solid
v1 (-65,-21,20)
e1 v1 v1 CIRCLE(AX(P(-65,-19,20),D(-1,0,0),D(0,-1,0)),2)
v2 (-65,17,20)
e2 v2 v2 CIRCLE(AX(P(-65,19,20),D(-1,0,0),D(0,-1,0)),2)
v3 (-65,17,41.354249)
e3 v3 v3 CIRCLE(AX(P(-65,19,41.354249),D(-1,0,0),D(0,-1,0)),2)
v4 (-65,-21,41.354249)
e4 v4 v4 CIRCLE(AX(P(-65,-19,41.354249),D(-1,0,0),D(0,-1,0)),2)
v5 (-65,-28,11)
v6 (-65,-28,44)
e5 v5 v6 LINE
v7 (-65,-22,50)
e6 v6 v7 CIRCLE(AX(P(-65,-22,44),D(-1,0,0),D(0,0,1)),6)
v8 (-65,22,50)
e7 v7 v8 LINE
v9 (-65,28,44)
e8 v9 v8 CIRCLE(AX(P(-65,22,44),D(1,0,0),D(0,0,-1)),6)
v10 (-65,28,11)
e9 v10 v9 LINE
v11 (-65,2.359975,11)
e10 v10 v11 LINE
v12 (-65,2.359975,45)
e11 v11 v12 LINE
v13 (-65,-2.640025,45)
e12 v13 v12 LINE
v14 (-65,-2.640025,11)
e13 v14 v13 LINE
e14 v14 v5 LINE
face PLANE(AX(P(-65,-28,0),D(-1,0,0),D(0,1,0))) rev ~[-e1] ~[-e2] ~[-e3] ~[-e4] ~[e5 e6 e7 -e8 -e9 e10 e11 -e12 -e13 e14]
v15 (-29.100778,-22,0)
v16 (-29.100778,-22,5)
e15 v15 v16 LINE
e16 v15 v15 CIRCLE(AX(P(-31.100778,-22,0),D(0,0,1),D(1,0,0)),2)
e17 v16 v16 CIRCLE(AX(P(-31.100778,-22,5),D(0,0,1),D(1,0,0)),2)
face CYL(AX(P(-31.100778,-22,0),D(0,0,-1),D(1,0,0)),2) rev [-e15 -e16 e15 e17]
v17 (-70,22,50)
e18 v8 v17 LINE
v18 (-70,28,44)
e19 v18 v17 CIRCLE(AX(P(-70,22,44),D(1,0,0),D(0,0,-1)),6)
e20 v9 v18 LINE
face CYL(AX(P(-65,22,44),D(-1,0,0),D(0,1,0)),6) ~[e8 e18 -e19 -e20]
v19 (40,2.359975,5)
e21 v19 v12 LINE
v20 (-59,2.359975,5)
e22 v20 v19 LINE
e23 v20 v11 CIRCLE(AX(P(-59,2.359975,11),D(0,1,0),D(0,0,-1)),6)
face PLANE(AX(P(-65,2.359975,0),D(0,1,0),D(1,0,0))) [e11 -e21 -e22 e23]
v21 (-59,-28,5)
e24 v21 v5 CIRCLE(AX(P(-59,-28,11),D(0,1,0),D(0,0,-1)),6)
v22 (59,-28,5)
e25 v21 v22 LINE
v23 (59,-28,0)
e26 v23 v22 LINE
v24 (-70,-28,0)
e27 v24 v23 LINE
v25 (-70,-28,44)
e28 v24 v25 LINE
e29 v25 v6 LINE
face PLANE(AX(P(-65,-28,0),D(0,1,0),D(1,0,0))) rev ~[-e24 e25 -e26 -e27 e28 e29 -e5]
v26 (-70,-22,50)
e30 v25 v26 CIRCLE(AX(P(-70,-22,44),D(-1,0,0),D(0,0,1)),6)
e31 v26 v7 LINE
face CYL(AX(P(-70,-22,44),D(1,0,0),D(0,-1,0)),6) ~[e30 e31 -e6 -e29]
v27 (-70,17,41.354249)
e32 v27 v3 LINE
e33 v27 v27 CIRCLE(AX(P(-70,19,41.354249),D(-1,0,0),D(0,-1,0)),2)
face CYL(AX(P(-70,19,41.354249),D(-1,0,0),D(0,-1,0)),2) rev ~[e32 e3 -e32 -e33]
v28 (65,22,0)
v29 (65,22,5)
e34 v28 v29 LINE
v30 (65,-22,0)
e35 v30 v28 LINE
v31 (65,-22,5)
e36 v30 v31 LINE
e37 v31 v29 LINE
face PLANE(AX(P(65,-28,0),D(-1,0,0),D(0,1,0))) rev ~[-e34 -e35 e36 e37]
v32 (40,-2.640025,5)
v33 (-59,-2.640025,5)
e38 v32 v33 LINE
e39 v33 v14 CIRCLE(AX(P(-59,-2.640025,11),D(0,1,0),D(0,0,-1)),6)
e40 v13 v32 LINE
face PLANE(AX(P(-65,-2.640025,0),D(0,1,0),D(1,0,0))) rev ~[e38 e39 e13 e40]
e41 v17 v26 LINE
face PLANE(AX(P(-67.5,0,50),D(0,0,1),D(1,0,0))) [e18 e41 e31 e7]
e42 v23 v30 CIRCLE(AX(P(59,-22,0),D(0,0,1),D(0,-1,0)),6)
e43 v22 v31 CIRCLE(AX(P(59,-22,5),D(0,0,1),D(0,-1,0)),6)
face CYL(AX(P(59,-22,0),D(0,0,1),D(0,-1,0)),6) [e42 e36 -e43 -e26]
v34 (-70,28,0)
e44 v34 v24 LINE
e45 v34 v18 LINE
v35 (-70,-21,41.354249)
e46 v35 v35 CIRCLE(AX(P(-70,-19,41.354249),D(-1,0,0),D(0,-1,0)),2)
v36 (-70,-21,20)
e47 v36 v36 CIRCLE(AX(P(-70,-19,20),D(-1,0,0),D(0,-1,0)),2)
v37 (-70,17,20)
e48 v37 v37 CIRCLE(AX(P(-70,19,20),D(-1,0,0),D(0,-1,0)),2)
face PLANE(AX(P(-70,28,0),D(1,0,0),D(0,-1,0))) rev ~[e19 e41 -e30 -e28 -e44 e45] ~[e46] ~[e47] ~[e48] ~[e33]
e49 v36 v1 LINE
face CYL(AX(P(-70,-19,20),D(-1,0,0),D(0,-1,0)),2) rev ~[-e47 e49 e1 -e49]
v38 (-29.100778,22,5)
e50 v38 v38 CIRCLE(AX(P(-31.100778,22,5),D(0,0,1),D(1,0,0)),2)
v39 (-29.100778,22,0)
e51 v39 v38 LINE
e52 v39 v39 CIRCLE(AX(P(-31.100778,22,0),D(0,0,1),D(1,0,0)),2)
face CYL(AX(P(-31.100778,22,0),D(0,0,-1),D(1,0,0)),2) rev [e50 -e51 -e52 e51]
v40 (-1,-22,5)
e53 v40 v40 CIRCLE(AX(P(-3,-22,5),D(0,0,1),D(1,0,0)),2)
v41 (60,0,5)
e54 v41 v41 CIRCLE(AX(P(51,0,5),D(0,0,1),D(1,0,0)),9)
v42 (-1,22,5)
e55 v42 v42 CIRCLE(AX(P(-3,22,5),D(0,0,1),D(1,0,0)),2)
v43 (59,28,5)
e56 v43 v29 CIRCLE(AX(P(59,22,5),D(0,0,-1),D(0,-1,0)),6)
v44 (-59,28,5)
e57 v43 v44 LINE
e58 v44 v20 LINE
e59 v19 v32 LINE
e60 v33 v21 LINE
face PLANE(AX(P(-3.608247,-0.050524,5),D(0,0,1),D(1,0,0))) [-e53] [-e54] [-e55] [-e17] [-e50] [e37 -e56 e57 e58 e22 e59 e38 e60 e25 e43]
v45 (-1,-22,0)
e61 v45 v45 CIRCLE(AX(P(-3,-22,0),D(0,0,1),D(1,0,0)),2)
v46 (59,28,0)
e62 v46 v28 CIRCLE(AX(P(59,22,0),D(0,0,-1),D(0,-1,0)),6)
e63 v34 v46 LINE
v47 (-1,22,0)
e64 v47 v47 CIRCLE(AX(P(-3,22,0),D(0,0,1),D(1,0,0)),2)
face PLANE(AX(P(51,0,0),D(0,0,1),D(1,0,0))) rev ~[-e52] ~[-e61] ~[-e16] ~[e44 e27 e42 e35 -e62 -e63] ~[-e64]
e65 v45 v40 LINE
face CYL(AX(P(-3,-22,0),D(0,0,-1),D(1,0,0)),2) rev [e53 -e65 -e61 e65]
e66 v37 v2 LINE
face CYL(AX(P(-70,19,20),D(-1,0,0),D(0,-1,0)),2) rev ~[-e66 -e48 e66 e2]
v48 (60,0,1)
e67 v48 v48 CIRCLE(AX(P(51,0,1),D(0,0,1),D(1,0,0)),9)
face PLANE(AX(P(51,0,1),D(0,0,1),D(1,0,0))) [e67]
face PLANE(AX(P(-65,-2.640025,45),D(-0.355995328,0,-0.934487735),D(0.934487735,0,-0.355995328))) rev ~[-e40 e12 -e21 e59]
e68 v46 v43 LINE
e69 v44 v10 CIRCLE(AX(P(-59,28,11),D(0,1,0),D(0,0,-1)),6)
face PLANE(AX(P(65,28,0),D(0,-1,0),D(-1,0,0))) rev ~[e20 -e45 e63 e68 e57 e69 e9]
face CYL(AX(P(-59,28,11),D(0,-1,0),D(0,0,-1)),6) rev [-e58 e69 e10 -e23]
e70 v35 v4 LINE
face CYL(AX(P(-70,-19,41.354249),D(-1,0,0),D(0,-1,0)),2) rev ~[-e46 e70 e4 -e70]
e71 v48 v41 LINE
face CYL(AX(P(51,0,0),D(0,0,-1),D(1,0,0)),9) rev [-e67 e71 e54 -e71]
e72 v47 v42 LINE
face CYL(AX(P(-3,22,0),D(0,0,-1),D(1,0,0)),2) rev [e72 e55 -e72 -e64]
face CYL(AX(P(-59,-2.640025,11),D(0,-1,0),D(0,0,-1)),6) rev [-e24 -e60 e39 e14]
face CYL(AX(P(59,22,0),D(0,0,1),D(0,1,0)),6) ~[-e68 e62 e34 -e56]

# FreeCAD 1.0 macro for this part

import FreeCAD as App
import Part
import Sketcher


def edges_at(feature, points):
    """Names of the edges that pass closest to the given points."""
    edges = feature.Shape.Edges
    near = lambda p: min(range(len(edges)), key=lambda i: edges[i].distToShape(Part.Vertex(*p))[0])
    return sorted({f"Edge{near(p) + 1}" for p in points})

doc = App.newDocument("Part")
body = doc.addObject("PartDesign::Body", "Body")

# Sketch on XY plane
sketch1 = body.newObject("Sketcher::SketchObject", "Sketch")
sketch1.AttachmentSupport = (doc.getObject("XY_Plane"), [""])
sketch1.MapMode = "FlatFace"
sketch1.addGeometry([
    Part.LineSegment(App.Vector(-70, -28, 0), App.Vector(-65, -28, 0)),
    Part.LineSegment(App.Vector(-65, -28, 0), App.Vector(-65, 28, 0)),
    Part.LineSegment(App.Vector(-65, 28, 0), App.Vector(-70, 28, 0)),
    Part.LineSegment(App.Vector(-70, 28, 0), App.Vector(-70, -28, 0)),
], False)
sketch1.addConstraint([
    Sketcher.Constraint("Coincident", 0, 2, 1, 1),
    Sketcher.Constraint("Coincident", 1, 2, 2, 1),
    Sketcher.Constraint("Coincident", 2, 2, 3, 1),
    Sketcher.Constraint("Coincident", 3, 2, 0, 1),
    Sketcher.Constraint("Horizontal", 0),
    Sketcher.Constraint("Vertical", 1),
    Sketcher.Constraint("Horizontal", 2),
    Sketcher.Constraint("Vertical", 3),
    Sketcher.Constraint("DistanceX", 0, 1, 0, 2, 5.0),
    Sketcher.Constraint("DistanceY", 1, 1, 1, 2, 56.0),
    Sketcher.Constraint("DistanceX", 0, 2, -1, 1, 65.0),
    Sketcher.Constraint("DistanceY", 0, 2, -1, 1, 28.0),
])
pad1 = body.newObject("PartDesign::Pad", "Pad")
pad1.Profile = sketch1
pad1.Length = 50

# Sketch on XY plane
sketch2 = body.newObject("Sketcher::SketchObject", "Sketch001")
sketch2.AttachmentSupport = (doc.getObject("XY_Plane"), [""])
sketch2.MapMode = "FlatFace"
sketch2.addGeometry([
    Part.LineSegment(App.Vector(-65, -28, 0), App.Vector(65, -28, 0)),  # 0
    Part.LineSegment(App.Vector(65, -28, 0), App.Vector(65, 28, 0)),  # 1
    Part.LineSegment(App.Vector(65, 28, 0), App.Vector(-65, 28, 0)),  # 2
    Part.LineSegment(App.Vector(-65, 28, 0), App.Vector(-65, 2.4, 0)),  # 3
    Part.LineSegment(App.Vector(-65, 2.4, 0), App.Vector(40, 2.4, 0)),  # 4
    Part.LineSegment(App.Vector(40, 2.4, 0), App.Vector(40, -2.6, 0)),  # 5
    Part.LineSegment(App.Vector(40, -2.6, 0), App.Vector(-65, -2.6, 0)),  # 6
    Part.LineSegment(App.Vector(-65, -2.6, 0), App.Vector(-65, -28, 0)),  # 7
    Part.Circle(App.Vector(-31.1, -22, 0), App.Vector(0, 0, 1), 2),  # 8
    Part.Circle(App.Vector(-3, -22, 0), App.Vector(0, 0, 1), 2),  # 9
    Part.Circle(App.Vector(-31.1, 22, 0), App.Vector(0, 0, 1), 2),  # 10
    Part.Circle(App.Vector(-3, 22, 0), App.Vector(0, 0, 1), 2),  # 11
    Part.Circle(App.Vector(51, 0, 0), App.Vector(0, 0, 1), 9),  # 12
], False)
sketch2.addConstraint([
    Sketcher.Constraint("Coincident", 0, 2, 1, 1),
    Sketcher.Constraint("Coincident", 1, 2, 2, 1),
    Sketcher.Constraint("Coincident", 2, 2, 3, 1),
    Sketcher.Constraint("Coincident", 3, 2, 4, 1),
    Sketcher.Constraint("Coincident", 4, 2, 5, 1),
    Sketcher.Constraint("Coincident", 5, 2, 6, 1),
    Sketcher.Constraint("Coincident", 6, 2, 7, 1),
    Sketcher.Constraint("Coincident", 7, 2, 0, 1),
    Sketcher.Constraint("Horizontal", 0),
    Sketcher.Constraint("Vertical", 1),
    Sketcher.Constraint("Horizontal", 2),
    Sketcher.Constraint("Vertical", 3),
    Sketcher.Constraint("Horizontal", 4),
    Sketcher.Constraint("Vertical", 5),
    Sketcher.Constraint("Horizontal", 6),
    Sketcher.Constraint("Vertical", 7),
    Sketcher.Constraint("Equal", 8, 9),
    Sketcher.Constraint("Equal", 9, 10),
    Sketcher.Constraint("Equal", 10, 11),
    Sketcher.Constraint("Symmetric", 0, 2, 2, 2, -1, 1),
    Sketcher.Constraint("Symmetric", 8, 3, 10, 3, -1),
    Sketcher.Constraint("Symmetric", 9, 3, 11, 3, -1),
    Sketcher.Constraint("PointOnObject", 12, 3, -1),
    Sketcher.Constraint("Horizontal", 8, 3, 9, 3),
    Sketcher.Constraint("Vertical", 3, 2, 6, 2),
    Sketcher.Constraint("Diameter", 8, 4.0),
    Sketcher.Constraint("Diameter", 12, 18.0),
    Sketcher.Constraint("DistanceX", 0, 1, 0, 2, 130.0),
    Sketcher.Constraint("DistanceX", 4, 1, 4, 2, 105.0),
    Sketcher.Constraint("DistanceY", 1, 1, 1, 2, 56.0),
    Sketcher.Constraint("DistanceY", 5, 2, 5, 1, 5.0),
    Sketcher.Constraint("DistanceY", 8, 3, -1, 1, 22.0),
    Sketcher.Constraint("DistanceX", 9, 3, -1, 1, 3.0),
    Sketcher.Constraint("DistanceX", -1, 1, 12, 3, 51.0),
    Sketcher.Constraint("DistanceY", 3, 2, 3, 1, 25.640025),
    Sketcher.Constraint("DistanceX", 8, 3, -1, 1, 31.100778),
])
pad2 = body.newObject("PartDesign::Pad", "Pad001")
pad2.Profile = sketch2
pad2.Length = 5
doc.recompute()

fillet = body.newObject("PartDesign::Fillet", "Fillet")
fillet.Base = (pad2, edges_at(pad2, [
    (-67.5, 28, 50),
    (-67.5, -28, 50),
    (65, -28, 2.5),
    (65, 28, 2.5),
    (-65, -15.32, 5),
    (-65, 15.18, 5),
]))
fillet.Radius = 6

# Sketch on XY plane
sketch3 = body.newObject("Sketcher::SketchObject", "Sketch002")
sketch3.AttachmentSupport = (doc.getObject("XY_Plane"), [""])
sketch3.MapMode = "FlatFace"
sketch3.addGeometry(Part.Circle(App.Vector(51, 0, 0), App.Vector(0, 0, 1), 9), False)
sketch3.addConstraint([
    Sketcher.Constraint("PointOnObject", 0, 3, -1),
    Sketcher.Constraint("Diameter", 0, 18.0),
    Sketcher.Constraint("DistanceX", -1, 1, 0, 3, 51.0),
])
pad3 = body.newObject("PartDesign::Pad", "Pad002")
pad3.Profile = sketch3
pad3.Length = 1

# Sketch on XY plane
sketch4 = body.newObject("Sketcher::SketchObject", "Sketch003")
sketch4.AttachmentSupport = (doc.getObject("XY_Plane"), [""])
sketch4.MapMode = "FlatFace"
sketch4.addGeometry([
    Part.LineSegment(App.Vector(-65, 2, 0), App.Vector(-65, -3, 0)),
    Part.LineSegment(App.Vector(-65, -3, 0), App.Vector(40, -3, 0)),
    Part.LineSegment(App.Vector(40, -3, 0), App.Vector(40, 2, 0)),
    Part.LineSegment(App.Vector(40, 2, 0), App.Vector(-65, 2, 0)),
], False)
sketch4.addConstraint([
    Sketcher.Constraint("Coincident", 0, 2, 1, 1),
    Sketcher.Constraint("Coincident", 1, 2, 2, 1),
    Sketcher.Constraint("Coincident", 2, 2, 3, 1),
    Sketcher.Constraint("Coincident", 3, 2, 0, 1),
    Sketcher.Constraint("Vertical", 0),
    Sketcher.Constraint("Horizontal", 1),
    Sketcher.Constraint("Vertical", 2),
    Sketcher.Constraint("Horizontal", 3),
    Sketcher.Constraint("DistanceX", 1, 1, 1, 2, 105.0),
    Sketcher.Constraint("DistanceY", 0, 2, 0, 1, 5.0),
    Sketcher.Constraint("DistanceX", 0, 2, -1, 1, 65.0),
    Sketcher.Constraint("DistanceY", 0, 2, -1, 1, 2.640025),
])
pad4 = body.newObject("PartDesign::Pad", "Pad003")
pad4.Profile = sketch4
pad4.Length = 45

# Sketch on XZ plane
sketch5 = body.newObject("Sketcher::SketchObject", "Sketch004")
sketch5.AttachmentSupport = (doc.getObject("XZ_Plane"), [""])
sketch5.MapMode = "FlatFace"
sketch5.AttachmentOffset = App.Placement(App.Vector(0, 0, 2.640025), App.Rotation())
sketch5.addGeometry([
    Part.LineSegment(App.Vector(40, 45, 0), App.Vector(-65, 45, 0)),
    Part.LineSegment(App.Vector(-65, 45, 0), App.Vector(40, 5, 0)),
    Part.LineSegment(App.Vector(40, 5, 0), App.Vector(40, 45, 0)),
], False)
sketch5.addConstraint([
    Sketcher.Constraint("Coincident", 0, 2, 1, 1),
    Sketcher.Constraint("Coincident", 1, 2, 2, 1),
    Sketcher.Constraint("Coincident", 2, 2, 0, 1),
    Sketcher.Constraint("Horizontal", 0),
    Sketcher.Constraint("Vertical", 2),
    Sketcher.Constraint("DistanceX", 0, 2, 0, 1, 105.0),
    Sketcher.Constraint("DistanceY", 2, 1, 2, 2, 40.0),
    Sketcher.Constraint("DistanceX", 0, 2, -1, 1, 65.0),
    Sketcher.Constraint("DistanceY", -1, 1, 0, 2, 45.0),
])
pocket1 = body.newObject("PartDesign::Pocket", "Pocket")
pocket1.Profile = sketch5
pocket1.Length = 25

# Sketch on YZ plane
sketch6 = body.newObject("Sketcher::SketchObject", "Sketch005")
sketch6.AttachmentSupport = (doc.getObject("YZ_Plane"), [""])
sketch6.MapMode = "FlatFace"
sketch6.AttachmentOffset = App.Placement(App.Vector(0, 0, -70), App.Rotation())
sketch6.addGeometry([
    Part.Circle(App.Vector(19, 41.4, 0), App.Vector(0, 0, 1), 2),
    Part.Circle(App.Vector(19, 20, 0), App.Vector(0, 0, 1), 2),
    Part.Circle(App.Vector(-19, 41.4, 0), App.Vector(0, 0, 1), 2),
    Part.Circle(App.Vector(-19, 20, 0), App.Vector(0, 0, 1), 2),
], False)
sketch6.addConstraint([
    Sketcher.Constraint("Equal", 0, 1),
    Sketcher.Constraint("Equal", 1, 2),
    Sketcher.Constraint("Equal", 2, 3),
    Sketcher.Constraint("Symmetric", 0, 3, 2, 3, -2),
    Sketcher.Constraint("Symmetric", 1, 3, 3, 3, -2),
    Sketcher.Constraint("Vertical", 0, 3, 1, 3),
    Sketcher.Constraint("Diameter", 0, 4.0),
    Sketcher.Constraint("DistanceX", -1, 1, 0, 3, 19.0),
    Sketcher.Constraint("DistanceY", -1, 1, 1, 3, 20.0),
    Sketcher.Constraint("DistanceY", -1, 1, 0, 3, 41.354249),
])
pocket2 = body.newObject("PartDesign::Pocket", "Pocket001")
pocket2.Profile = sketch6
pocket2.Length = 25
pocket2.Reversed = True

doc.recompute()
